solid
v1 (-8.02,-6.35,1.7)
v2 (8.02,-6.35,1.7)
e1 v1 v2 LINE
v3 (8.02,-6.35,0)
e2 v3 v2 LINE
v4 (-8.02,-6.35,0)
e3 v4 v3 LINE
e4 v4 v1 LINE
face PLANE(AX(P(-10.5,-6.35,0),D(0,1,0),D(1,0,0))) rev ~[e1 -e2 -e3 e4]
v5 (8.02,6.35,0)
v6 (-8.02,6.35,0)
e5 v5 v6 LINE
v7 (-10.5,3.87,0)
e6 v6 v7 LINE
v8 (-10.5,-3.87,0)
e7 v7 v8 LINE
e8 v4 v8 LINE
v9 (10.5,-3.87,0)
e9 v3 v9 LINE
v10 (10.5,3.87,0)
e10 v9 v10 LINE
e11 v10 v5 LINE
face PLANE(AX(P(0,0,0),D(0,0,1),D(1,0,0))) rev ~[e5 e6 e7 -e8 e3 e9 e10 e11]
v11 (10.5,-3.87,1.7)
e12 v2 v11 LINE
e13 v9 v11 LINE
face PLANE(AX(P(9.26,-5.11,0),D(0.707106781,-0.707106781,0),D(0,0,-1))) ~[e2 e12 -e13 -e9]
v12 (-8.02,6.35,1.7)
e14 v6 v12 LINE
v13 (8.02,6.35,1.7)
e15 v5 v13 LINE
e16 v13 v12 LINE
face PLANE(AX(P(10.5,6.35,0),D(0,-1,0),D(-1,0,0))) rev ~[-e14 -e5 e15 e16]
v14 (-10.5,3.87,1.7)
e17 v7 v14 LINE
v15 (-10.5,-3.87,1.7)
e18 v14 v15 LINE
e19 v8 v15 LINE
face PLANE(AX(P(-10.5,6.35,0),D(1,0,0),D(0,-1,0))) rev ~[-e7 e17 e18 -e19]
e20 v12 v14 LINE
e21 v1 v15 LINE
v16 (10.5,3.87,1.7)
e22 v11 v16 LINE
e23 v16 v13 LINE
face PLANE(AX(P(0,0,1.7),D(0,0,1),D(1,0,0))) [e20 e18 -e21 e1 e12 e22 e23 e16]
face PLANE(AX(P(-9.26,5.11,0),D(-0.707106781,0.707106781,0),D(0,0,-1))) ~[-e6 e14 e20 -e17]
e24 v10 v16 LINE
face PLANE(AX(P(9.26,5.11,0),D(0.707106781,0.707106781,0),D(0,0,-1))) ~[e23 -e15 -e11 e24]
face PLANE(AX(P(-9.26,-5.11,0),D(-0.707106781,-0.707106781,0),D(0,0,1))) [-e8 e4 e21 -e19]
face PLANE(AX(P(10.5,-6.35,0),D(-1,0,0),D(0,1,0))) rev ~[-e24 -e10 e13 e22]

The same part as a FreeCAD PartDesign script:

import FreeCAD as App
import Part
import Sketcher


def edges_at(feature, points):
    """Names of the edges that pass closest to the given points."""
    edges = feature.Shape.Edges
    near = lambda p: min(range(len(edges)), key=lambda i: edges[i].distToShape(Part.Vertex(*p))[0])
    return sorted({f"Edge{near(p) + 1}" for p in points})


def add_polygon(sketch, points):
    """Adds a closed chain of lines whose ends are joined by coincident constraints."""
    first, n = sketch.GeometryCount, len(points)
    for a, b in zip(points, points[1:] + points[:1]):
        sketch.addGeometry(Part.LineSegment(App.Vector(*a, 0), App.Vector(*b, 0)), False)
    for i in range(n):
        sketch.addConstraint(Sketcher.Constraint("Coincident", first + i, 2, first + (i + 1) % n, 1))

doc = App.newDocument("Part")
body = doc.addObject("PartDesign::Body", "Body")

# Sketch on XY plane
sketch1 = body.newObject("Sketcher::SketchObject", "Sketch")
sketch1.AttachmentSupport = (doc.getObject("XY_Plane"), [""])
sketch1.MapMode = "FlatFace"
add_polygon(sketch1, [(-10, 6), (-10, -6), (10, -6), (10, 6)])  # lines 0-3
sketch1.addConstraint(Sketcher.Constraint("Vertical", 0))
sketch1.addConstraint(Sketcher.Constraint("Horizontal", 1))
sketch1.addConstraint(Sketcher.Constraint("Vertical", 2))
sketch1.addConstraint(Sketcher.Constraint("Horizontal", 3))
sketch1.addConstraint(Sketcher.Constraint("Symmetric", 0, 2, 2, 2, -1, 1))
sketch1.addConstraint(Sketcher.Constraint("DistanceX", 1, 1, 1, 2, 21.0))
sketch1.addConstraint(Sketcher.Constraint("DistanceY", 0, 2, 0, 1, 12.7))
pad1 = body.newObject("PartDesign::Pad", "Pad")
pad1.Profile = sketch1
pad1.Length = 1.7
doc.recompute()

chamfer = body.newObject("PartDesign::Chamfer", "Chamfer")
chamfer.Base = (pad1, edges_at(pad1, [
    (-10.5, -6.35, 0.85),
    (10.5, -6.35, 0.85),
    (10.5, 6.35, 0.85),
    (-10.5, 6.35, 0.85),
]))
chamfer.Size = 2.48

doc.recompute()
